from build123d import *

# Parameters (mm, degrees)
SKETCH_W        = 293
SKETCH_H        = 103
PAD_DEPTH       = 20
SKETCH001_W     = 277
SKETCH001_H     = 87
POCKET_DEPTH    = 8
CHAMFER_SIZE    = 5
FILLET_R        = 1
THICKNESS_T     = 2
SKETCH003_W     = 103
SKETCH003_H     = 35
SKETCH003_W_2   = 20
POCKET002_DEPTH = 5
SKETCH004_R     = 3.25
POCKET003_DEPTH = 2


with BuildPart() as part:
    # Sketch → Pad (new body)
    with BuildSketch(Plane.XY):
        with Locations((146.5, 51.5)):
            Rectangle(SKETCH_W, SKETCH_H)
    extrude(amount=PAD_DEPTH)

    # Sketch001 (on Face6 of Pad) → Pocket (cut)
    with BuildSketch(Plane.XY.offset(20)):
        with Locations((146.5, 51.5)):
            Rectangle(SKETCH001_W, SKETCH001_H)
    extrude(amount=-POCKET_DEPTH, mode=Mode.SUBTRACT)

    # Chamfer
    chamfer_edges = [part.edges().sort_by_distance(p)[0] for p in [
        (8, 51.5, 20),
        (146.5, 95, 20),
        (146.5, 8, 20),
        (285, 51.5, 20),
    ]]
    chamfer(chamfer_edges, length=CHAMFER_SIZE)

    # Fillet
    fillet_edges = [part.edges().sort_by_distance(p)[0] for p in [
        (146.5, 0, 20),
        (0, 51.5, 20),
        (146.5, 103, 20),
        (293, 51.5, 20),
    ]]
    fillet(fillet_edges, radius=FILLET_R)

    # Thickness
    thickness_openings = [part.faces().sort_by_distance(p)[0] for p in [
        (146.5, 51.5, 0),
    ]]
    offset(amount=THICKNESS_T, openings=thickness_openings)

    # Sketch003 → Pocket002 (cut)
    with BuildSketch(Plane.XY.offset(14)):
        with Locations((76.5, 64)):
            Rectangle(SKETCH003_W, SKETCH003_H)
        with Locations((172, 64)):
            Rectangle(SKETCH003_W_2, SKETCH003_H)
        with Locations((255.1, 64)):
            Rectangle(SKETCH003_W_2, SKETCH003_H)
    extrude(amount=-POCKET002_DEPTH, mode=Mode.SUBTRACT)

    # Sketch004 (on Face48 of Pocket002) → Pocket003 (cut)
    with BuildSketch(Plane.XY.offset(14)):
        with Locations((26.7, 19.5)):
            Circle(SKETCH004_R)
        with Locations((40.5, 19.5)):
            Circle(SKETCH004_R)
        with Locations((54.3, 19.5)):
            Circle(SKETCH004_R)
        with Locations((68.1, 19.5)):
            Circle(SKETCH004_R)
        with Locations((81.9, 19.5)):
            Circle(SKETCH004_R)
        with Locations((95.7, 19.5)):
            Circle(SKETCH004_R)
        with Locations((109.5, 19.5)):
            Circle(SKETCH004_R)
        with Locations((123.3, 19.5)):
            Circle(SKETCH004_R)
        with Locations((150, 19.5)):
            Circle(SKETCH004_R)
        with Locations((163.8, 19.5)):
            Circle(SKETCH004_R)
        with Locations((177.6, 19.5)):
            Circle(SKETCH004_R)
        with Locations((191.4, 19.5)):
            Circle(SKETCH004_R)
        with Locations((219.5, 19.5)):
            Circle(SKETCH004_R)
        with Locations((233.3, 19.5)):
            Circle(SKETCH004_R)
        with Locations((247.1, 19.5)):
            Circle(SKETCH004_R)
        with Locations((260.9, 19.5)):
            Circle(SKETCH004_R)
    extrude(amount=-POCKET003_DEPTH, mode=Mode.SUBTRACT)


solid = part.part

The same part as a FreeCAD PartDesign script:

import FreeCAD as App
import Part
import Sketcher


def edges_at(feature, points):
    """Names of the edges that pass closest to the given points."""
    edges = feature.Shape.Edges
    near = lambda p: min(range(len(edges)), key=lambda i: edges[i].distToShape(Part.Vertex(*p))[0])
    return sorted({f"Edge{near(p) + 1}" for p in points})


def faces_at(feature, points):
    """Names of the faces that lie closest to the given points."""
    faces = feature.Shape.Faces
    near = lambda p: min(range(len(faces)), key=lambda i: faces[i].distToShape(Part.Vertex(*p))[0])
    return sorted({f"Face{near(p) + 1}" for p in points})

doc = App.newDocument("Part")
body = doc.addObject("PartDesign::Body", "Body")

# Sketch on XY plane
sketch1 = body.newObject("Sketcher::SketchObject", "Sketch")
sketch1.AttachmentSupport = (doc.getObject("XY_Plane"), [""])
sketch1.MapMode = "FlatFace"
sketch1.addGeometry(Part.LineSegment(App.Vector(0, 103, 0), App.Vector(0, 0, 0)), False)
sketch1.addGeometry(Part.LineSegment(App.Vector(0, 0, 0), App.Vector(293, 0, 0)), False)
sketch1.addGeometry(Part.LineSegment(App.Vector(293, 0, 0), App.Vector(293, 103, 0)), False)
sketch1.addGeometry(Part.LineSegment(App.Vector(293, 103, 0), App.Vector(0, 103, 0)), False)
sketch1.addConstraint(Sketcher.Constraint("Coincident", 0, 2, 1, 1))
sketch1.addConstraint(Sketcher.Constraint("Coincident", 1, 2, 2, 1))
sketch1.addConstraint(Sketcher.Constraint("Coincident", 2, 2, 3, 1))
sketch1.addConstraint(Sketcher.Constraint("Coincident", 3, 2, 0, 1))
sketch1.addConstraint(Sketcher.Constraint("Vertical", 0))
sketch1.addConstraint(Sketcher.Constraint("Horizontal", 1))
sketch1.addConstraint(Sketcher.Constraint("Vertical", 2))
sketch1.addConstraint(Sketcher.Constraint("Horizontal", 3))
sketch1.addConstraint(Sketcher.Constraint("Coincident", 0, 2, -1, 1))
sketch1.addConstraint(Sketcher.Constraint("DistanceX", 1, 1, 1, 2, 293.0))
sketch1.addConstraint(Sketcher.Constraint("DistanceY", 0, 2, 0, 1, 103.0))
pad1 = body.newObject("PartDesign::Pad", "Pad")
pad1.Profile = sketch1
pad1.Length = 20

# Sketch on XY plane
sketch2 = body.newObject("Sketcher::SketchObject", "Sketch001")
sketch2.AttachmentSupport = (doc.getObject("XY_Plane"), [""])
sketch2.MapMode = "FlatFace"
sketch2.AttachmentOffset = App.Placement(App.Vector(0, 0, 20), App.Rotation())
sketch2.addGeometry(Part.LineSegment(App.Vector(8, 95, 0), App.Vector(8, 8, 0)), False)
sketch2.addGeometry(Part.LineSegment(App.Vector(8, 8, 0), App.Vector(285, 8, 0)), False)
sketch2.addGeometry(Part.LineSegment(App.Vector(285, 8, 0), App.Vector(285, 95, 0)), False)
sketch2.addGeometry(Part.LineSegment(App.Vector(285, 95, 0), App.Vector(8, 95, 0)), False)
sketch2.addConstraint(Sketcher.Constraint("Coincident", 0, 2, 1, 1))
sketch2.addConstraint(Sketcher.Constraint("Coincident", 1, 2, 2, 1))
sketch2.addConstraint(Sketcher.Constraint("Coincident", 2, 2, 3, 1))
sketch2.addConstraint(Sketcher.Constraint("Coincident", 3, 2, 0, 1))
sketch2.addConstraint(Sketcher.Constraint("Vertical", 0))
sketch2.addConstraint(Sketcher.Constraint("Horizontal", 1))
sketch2.addConstraint(Sketcher.Constraint("Vertical", 2))
sketch2.addConstraint(Sketcher.Constraint("Horizontal", 3))
sketch2.addConstraint(Sketcher.Constraint("DistanceX", 1, 1, 1, 2, 277.0))
sketch2.addConstraint(Sketcher.Constraint("DistanceY", 0, 2, 0, 1, 87.0))
sketch2.addConstraint(Sketcher.Constraint("DistanceX", -1, 1, 0, 2, 8.0))
sketch2.addConstraint(Sketcher.Constraint("DistanceY", -1, 1, 0, 2, 8.0))
pocket1 = body.newObject("PartDesign::Pocket", "Pocket")
pocket1.Profile = sketch2
pocket1.Length = 8
doc.recompute()

chamfer = body.newObject("PartDesign::Chamfer", "Chamfer")
chamfer.Base = (pocket1, edges_at(pocket1, [
    (8, 51.5, 20),
    (146.5, 95, 20),
    (146.5, 8, 20),
    (285, 51.5, 20),
]))
chamfer.Size = 5
doc.recompute()

fillet = body.newObject("PartDesign::Fillet", "Fillet")
fillet.Base = (chamfer, edges_at(chamfer, [
    (146.5, 0, 20),
    (0, 51.5, 20),
    (146.5, 103, 20),
    (293, 51.5, 20),
]))
fillet.Radius = 1
doc.recompute()

thickness = body.newObject("PartDesign::Thickness", "Thickness")
thickness.Base = (fillet, faces_at(fillet, [(146.5, 51.5, 0)]))
thickness.Value = 2
thickness.Reversed = False
thickness.Join = "Arc"

# Sketch on XY plane
sketch3 = body.newObject("Sketcher::SketchObject", "Sketch002")
sketch3.AttachmentSupport = (doc.getObject("XY_Plane"), [""])
sketch3.MapMode = "FlatFace"
sketch3.AttachmentOffset = App.Placement(App.Vector(0, 0, 14), App.Rotation())
sketch3.addGeometry(Part.LineSegment(App.Vector(25, 82, 0), App.Vector(25, 46, 0)), False)
sketch3.addGeometry(Part.LineSegment(App.Vector(25, 46, 0), App.Vector(128, 46, 0)), False)
sketch3.addGeometry(Part.LineSegment(App.Vector(128, 46, 0), App.Vector(128, 82, 0)), False)
sketch3.addGeometry(Part.LineSegment(App.Vector(128, 82, 0), App.Vector(25, 82, 0)), False)
sketch3.addGeometry(Part.LineSegment(App.Vector(162, 82, 0), App.Vector(162, 46, 0)), False)
sketch3.addGeometry(Part.LineSegment(App.Vector(162, 46, 0), App.Vector(182, 46, 0)), False)
sketch3.addGeometry(Part.LineSegment(App.Vector(182, 46, 0), App.Vector(182, 82, 0)), False)
sketch3.addGeometry(Part.LineSegment(App.Vector(182, 82, 0), App.Vector(162, 82, 0)), False)
sketch3.addGeometry(Part.LineSegment(App.Vector(245, 82, 0), App.Vector(245, 46, 0)), False)
sketch3.addGeometry(Part.LineSegment(App.Vector(245, 46, 0), App.Vector(265, 46, 0)), False)
sketch3.addGeometry(Part.LineSegment(App.Vector(265, 46, 0), App.Vector(265, 82, 0)), False)
sketch3.addGeometry(Part.LineSegment(App.Vector(265, 82, 0), App.Vector(245, 82, 0)), False)
sketch3.addConstraint(Sketcher.Constraint("Coincident", 0, 2, 1, 1))
sketch3.addConstraint(Sketcher.Constraint("Coincident", 1, 2, 2, 1))
sketch3.addConstraint(Sketcher.Constraint("Coincident", 2, 2, 3, 1))
sketch3.addConstraint(Sketcher.Constraint("Coincident", 3, 2, 0, 1))
sketch3.addConstraint(Sketcher.Constraint("Coincident", 4, 2, 5, 1))
sketch3.addConstraint(Sketcher.Constraint("Coincident", 5, 2, 6, 1))
sketch3.addConstraint(Sketcher.Constraint("Coincident", 6, 2, 7, 1))
sketch3.addConstraint(Sketcher.Constraint("Coincident", 7, 2, 4, 1))
sketch3.addConstraint(Sketcher.Constraint("Coincident", 8, 2, 9, 1))
sketch3.addConstraint(Sketcher.Constraint("Coincident", 9, 2, 10, 1))
sketch3.addConstraint(Sketcher.Constraint("Coincident", 10, 2, 11, 1))
sketch3.addConstraint(Sketcher.Constraint("Coincident", 11, 2, 8, 1))
sketch3.addConstraint(Sketcher.Constraint("Vertical", 0))
sketch3.addConstraint(Sketcher.Constraint("Horizontal", 1))
sketch3.addConstraint(Sketcher.Constraint("Vertical", 2))
sketch3.addConstraint(Sketcher.Constraint("Horizontal", 3))
sketch3.addConstraint(Sketcher.Constraint("Vertical", 4))
sketch3.addConstraint(Sketcher.Constraint("Horizontal", 5))
sketch3.addConstraint(Sketcher.Constraint("Vertical", 6))
sketch3.addConstraint(Sketcher.Constraint("Horizontal", 7))
sketch3.addConstraint(Sketcher.Constraint("Vertical", 8))
sketch3.addConstraint(Sketcher.Constraint("Horizontal", 9))
sketch3.addConstraint(Sketcher.Constraint("Vertical", 10))
sketch3.addConstraint(Sketcher.Constraint("Horizontal", 11))
sketch3.addConstraint(Sketcher.Constraint("Horizontal", 1, 2, 4, 2))
sketch3.addConstraint(Sketcher.Constraint("Horizontal", 3, 2, 6, 2))
sketch3.addConstraint(Sketcher.Constraint("Horizontal", 5, 2, 8, 2))
sketch3.addConstraint(Sketcher.Constraint("Horizontal", 7, 2, 10, 2))
sketch3.addConstraint(Sketcher.Constraint("Equal", 7, 9))
sketch3.addConstraint(Sketcher.Constraint("DistanceX", 1, 1, 1, 2, 103.0))
sketch3.addConstraint(Sketcher.Constraint("DistanceX", 5, 1, 5, 2, 20.0))
sketch3.addConstraint(Sketcher.Constraint("DistanceY", 0, 2, 0, 1, 35.0))
sketch3.addConstraint(Sketcher.Constraint("DistanceX", -1, 1, 0, 2, 25.0))
sketch3.addConstraint(Sketcher.Constraint("DistanceX", -1, 1, 4, 2, 162.0))
sketch3.addConstraint(Sketcher.Constraint("DistanceY", -1, 1, 0, 2, 46.5))
sketch3.addConstraint(Sketcher.Constraint("DistanceX", -1, 1, 8, 2, 245.1))
pocket2 = body.newObject("PartDesign::Pocket", "Pocket001")
pocket2.Profile = sketch3
pocket2.Length = 5

# Sketch on XY plane
sketch4 = body.newObject("Sketcher::SketchObject", "Sketch003")
sketch4.AttachmentSupport = (doc.getObject("XY_Plane"), [""])
sketch4.MapMode = "FlatFace"
sketch4.AttachmentOffset = App.Placement(App.Vector(0, 0, 14), App.Rotation())
sketch4.addGeometry(Part.Circle(App.Vector(26.7, 19.5, 0), App.Vector(0, 0, 1), 3.2), False)
sketch4.addGeometry(Part.Circle(App.Vector(40.5, 19.5, 0), App.Vector(0, 0, 1), 3.2), False)
sketch4.addGeometry(Part.Circle(App.Vector(54.3, 19.5, 0), App.Vector(0, 0, 1), 3.2), False)
sketch4.addGeometry(Part.Circle(App.Vector(68.1, 19.5, 0), App.Vector(0, 0, 1), 3.2), False)
sketch4.addGeometry(Part.Circle(App.Vector(81.9, 19.5, 0), App.Vector(0, 0, 1), 3.2), False)
sketch4.addGeometry(Part.Circle(App.Vector(95.7, 19.5, 0), App.Vector(0, 0, 1), 3.2), False)
sketch4.addGeometry(Part.Circle(App.Vector(109.5, 19.5, 0), App.Vector(0, 0, 1), 3.2), False)
sketch4.addGeometry(Part.Circle(App.Vector(123.3, 19.5, 0), App.Vector(0, 0, 1), 3.2), False)
sketch4.addGeometry(Part.Circle(App.Vector(150, 19.5, 0), App.Vector(0, 0, 1), 3.2), False)
sketch4.addGeometry(Part.Circle(App.Vector(163.8, 19.5, 0), App.Vector(0, 0, 1), 3.2), False)
sketch4.addGeometry(Part.Circle(App.Vector(177.6, 19.5, 0), App.Vector(0, 0, 1), 3.2), False)
sketch4.addGeometry(Part.Circle(App.Vector(191.4, 19.5, 0), App.Vector(0, 0, 1), 3.2), False)
sketch4.addGeometry(Part.Circle(App.Vector(219.5, 19.5, 0), App.Vector(0, 0, 1), 3.2), False)
sketch4.addGeometry(Part.Circle(App.Vector(233.3, 19.5, 0), App.Vector(0, 0, 1), 3.2), False)
sketch4.addGeometry(Part.Circle(App.Vector(247.1, 19.5, 0), App.Vector(0, 0, 1), 3.2), False)
sketch4.addGeometry(Part.Circle(App.Vector(260.9, 19.5, 0), App.Vector(0, 0, 1), 3.2), False)
sketch4.addConstraint(Sketcher.Constraint("Equal", 0, 1))
sketch4.addConstraint(Sketcher.Constraint("Equal", 1, 2))
sketch4.addConstraint(Sketcher.Constraint("Equal", 2, 3))
sketch4.addConstraint(Sketcher.Constraint("Equal", 3, 4))
sketch4.addConstraint(Sketcher.Constraint("Equal", 4, 5))
sketch4.addConstraint(Sketcher.Constraint("Equal", 5, 6))
sketch4.addConstraint(Sketcher.Constraint("Equal", 6, 7))
sketch4.addConstraint(Sketcher.Constraint("Equal", 7, 8))
sketch4.addConstraint(Sketcher.Constraint("Equal", 8, 9))
sketch4.addConstraint(Sketcher.Constraint("Equal", 9, 10))
sketch4.addConstraint(Sketcher.Constraint("Equal", 10, 11))
sketch4.addConstraint(Sketcher.Constraint("Equal", 11, 12))
sketch4.addConstraint(Sketcher.Constraint("Equal", 12, 13))
sketch4.addConstraint(Sketcher.Constraint("Equal", 13, 14))
sketch4.addConstraint(Sketcher.Constraint("Equal", 14, 15))
sketch4.addConstraint(Sketcher.Constraint("Horizontal", 0, 3, 1, 3))
sketch4.addConstraint(Sketcher.Constraint("Horizontal", 1, 3, 2, 3))
sketch4.addConstraint(Sketcher.Constraint("Horizontal", 2, 3, 3, 3))
sketch4.addConstraint(Sketcher.Constraint("Horizontal", 3, 3, 4, 3))
sketch4.addConstraint(Sketcher.Constraint("Horizontal", 4, 3, 5, 3))
sketch4.addConstraint(Sketcher.Constraint("Horizontal", 5, 3, 6, 3))
sketch4.addConstraint(Sketcher.Constraint("Horizontal", 6, 3, 7, 3))
sketch4.addConstraint(Sketcher.Constraint("Horizontal", 7, 3, 8, 3))
sketch4.addConstraint(Sketcher.Constraint("Horizontal", 8, 3, 9, 3))
sketch4.addConstraint(Sketcher.Constraint("Horizontal", 9, 3, 10, 3))
sketch4.addConstraint(Sketcher.Constraint("Horizontal", 10, 3, 11, 3))
sketch4.addConstraint(Sketcher.Constraint("Horizontal", 11, 3, 12, 3))
sketch4.addConstraint(Sketcher.Constraint("Horizontal", 12, 3, 13, 3))
sketch4.addConstraint(Sketcher.Constraint("Horizontal", 13, 3, 14, 3))
sketch4.addConstraint(Sketcher.Constraint("Horizontal", 14, 3, 15, 3))
sketch4.addConstraint(Sketcher.Constraint("Diameter", 0, 6.5))
sketch4.addConstraint(Sketcher.Constraint("DistanceX", -1, 1, 8, 3, 150.0))
sketch4.addConstraint(Sketcher.Constraint("DistanceX", 0, 3, 5, 3, 69.0))
sketch4.addConstraint(Sketcher.Constraint("DistanceX", 1, 3, 6, 3, 69.0))
sketch4.addConstraint(Sketcher.Constraint("DistanceX", 2, 3, 7, 3, 69.0))
sketch4.addConstraint(Sketcher.Constraint("DistanceX", -1, 1, 0, 3, 26.7))
sketch4.addConstraint(Sketcher.Constraint("DistanceY", -1, 1, 0, 3, 19.5))
sketch4.addConstraint(Sketcher.Constraint("DistanceX", -1, 1, 1, 3, 40.5))
sketch4.addConstraint(Sketcher.Constraint("DistanceX", -1, 1, 2, 3, 54.3))
sketch4.addConstraint(Sketcher.Constraint("DistanceX", -1, 1, 3, 3, 68.1))
sketch4.addConstraint(Sketcher.Constraint("DistanceX", -1, 1, 4, 3, 81.9))
sketch4.addConstraint(Sketcher.Constraint("DistanceX", -1, 1, 9, 3, 163.8))
sketch4.addConstraint(Sketcher.Constraint("DistanceX", -1, 1, 10, 3, 177.6))
sketch4.addConstraint(Sketcher.Constraint("DistanceX", -1, 1, 11, 3, 191.4))
sketch4.addConstraint(Sketcher.Constraint("DistanceX", -1, 1, 12, 3, 219.5))
sketch4.addConstraint(Sketcher.Constraint("DistanceX", -1, 1, 13, 3, 233.3))
sketch4.addConstraint(Sketcher.Constraint("DistanceX", -1, 1, 14, 3, 247.1))
sketch4.addConstraint(Sketcher.Constraint("DistanceX", -1, 1, 15, 3, 260.9))
pocket3 = body.newObject("PartDesign::Pocket", "Pocket002")
pocket3.Profile = sketch4
pocket3.Length = 2

doc.recompute()
